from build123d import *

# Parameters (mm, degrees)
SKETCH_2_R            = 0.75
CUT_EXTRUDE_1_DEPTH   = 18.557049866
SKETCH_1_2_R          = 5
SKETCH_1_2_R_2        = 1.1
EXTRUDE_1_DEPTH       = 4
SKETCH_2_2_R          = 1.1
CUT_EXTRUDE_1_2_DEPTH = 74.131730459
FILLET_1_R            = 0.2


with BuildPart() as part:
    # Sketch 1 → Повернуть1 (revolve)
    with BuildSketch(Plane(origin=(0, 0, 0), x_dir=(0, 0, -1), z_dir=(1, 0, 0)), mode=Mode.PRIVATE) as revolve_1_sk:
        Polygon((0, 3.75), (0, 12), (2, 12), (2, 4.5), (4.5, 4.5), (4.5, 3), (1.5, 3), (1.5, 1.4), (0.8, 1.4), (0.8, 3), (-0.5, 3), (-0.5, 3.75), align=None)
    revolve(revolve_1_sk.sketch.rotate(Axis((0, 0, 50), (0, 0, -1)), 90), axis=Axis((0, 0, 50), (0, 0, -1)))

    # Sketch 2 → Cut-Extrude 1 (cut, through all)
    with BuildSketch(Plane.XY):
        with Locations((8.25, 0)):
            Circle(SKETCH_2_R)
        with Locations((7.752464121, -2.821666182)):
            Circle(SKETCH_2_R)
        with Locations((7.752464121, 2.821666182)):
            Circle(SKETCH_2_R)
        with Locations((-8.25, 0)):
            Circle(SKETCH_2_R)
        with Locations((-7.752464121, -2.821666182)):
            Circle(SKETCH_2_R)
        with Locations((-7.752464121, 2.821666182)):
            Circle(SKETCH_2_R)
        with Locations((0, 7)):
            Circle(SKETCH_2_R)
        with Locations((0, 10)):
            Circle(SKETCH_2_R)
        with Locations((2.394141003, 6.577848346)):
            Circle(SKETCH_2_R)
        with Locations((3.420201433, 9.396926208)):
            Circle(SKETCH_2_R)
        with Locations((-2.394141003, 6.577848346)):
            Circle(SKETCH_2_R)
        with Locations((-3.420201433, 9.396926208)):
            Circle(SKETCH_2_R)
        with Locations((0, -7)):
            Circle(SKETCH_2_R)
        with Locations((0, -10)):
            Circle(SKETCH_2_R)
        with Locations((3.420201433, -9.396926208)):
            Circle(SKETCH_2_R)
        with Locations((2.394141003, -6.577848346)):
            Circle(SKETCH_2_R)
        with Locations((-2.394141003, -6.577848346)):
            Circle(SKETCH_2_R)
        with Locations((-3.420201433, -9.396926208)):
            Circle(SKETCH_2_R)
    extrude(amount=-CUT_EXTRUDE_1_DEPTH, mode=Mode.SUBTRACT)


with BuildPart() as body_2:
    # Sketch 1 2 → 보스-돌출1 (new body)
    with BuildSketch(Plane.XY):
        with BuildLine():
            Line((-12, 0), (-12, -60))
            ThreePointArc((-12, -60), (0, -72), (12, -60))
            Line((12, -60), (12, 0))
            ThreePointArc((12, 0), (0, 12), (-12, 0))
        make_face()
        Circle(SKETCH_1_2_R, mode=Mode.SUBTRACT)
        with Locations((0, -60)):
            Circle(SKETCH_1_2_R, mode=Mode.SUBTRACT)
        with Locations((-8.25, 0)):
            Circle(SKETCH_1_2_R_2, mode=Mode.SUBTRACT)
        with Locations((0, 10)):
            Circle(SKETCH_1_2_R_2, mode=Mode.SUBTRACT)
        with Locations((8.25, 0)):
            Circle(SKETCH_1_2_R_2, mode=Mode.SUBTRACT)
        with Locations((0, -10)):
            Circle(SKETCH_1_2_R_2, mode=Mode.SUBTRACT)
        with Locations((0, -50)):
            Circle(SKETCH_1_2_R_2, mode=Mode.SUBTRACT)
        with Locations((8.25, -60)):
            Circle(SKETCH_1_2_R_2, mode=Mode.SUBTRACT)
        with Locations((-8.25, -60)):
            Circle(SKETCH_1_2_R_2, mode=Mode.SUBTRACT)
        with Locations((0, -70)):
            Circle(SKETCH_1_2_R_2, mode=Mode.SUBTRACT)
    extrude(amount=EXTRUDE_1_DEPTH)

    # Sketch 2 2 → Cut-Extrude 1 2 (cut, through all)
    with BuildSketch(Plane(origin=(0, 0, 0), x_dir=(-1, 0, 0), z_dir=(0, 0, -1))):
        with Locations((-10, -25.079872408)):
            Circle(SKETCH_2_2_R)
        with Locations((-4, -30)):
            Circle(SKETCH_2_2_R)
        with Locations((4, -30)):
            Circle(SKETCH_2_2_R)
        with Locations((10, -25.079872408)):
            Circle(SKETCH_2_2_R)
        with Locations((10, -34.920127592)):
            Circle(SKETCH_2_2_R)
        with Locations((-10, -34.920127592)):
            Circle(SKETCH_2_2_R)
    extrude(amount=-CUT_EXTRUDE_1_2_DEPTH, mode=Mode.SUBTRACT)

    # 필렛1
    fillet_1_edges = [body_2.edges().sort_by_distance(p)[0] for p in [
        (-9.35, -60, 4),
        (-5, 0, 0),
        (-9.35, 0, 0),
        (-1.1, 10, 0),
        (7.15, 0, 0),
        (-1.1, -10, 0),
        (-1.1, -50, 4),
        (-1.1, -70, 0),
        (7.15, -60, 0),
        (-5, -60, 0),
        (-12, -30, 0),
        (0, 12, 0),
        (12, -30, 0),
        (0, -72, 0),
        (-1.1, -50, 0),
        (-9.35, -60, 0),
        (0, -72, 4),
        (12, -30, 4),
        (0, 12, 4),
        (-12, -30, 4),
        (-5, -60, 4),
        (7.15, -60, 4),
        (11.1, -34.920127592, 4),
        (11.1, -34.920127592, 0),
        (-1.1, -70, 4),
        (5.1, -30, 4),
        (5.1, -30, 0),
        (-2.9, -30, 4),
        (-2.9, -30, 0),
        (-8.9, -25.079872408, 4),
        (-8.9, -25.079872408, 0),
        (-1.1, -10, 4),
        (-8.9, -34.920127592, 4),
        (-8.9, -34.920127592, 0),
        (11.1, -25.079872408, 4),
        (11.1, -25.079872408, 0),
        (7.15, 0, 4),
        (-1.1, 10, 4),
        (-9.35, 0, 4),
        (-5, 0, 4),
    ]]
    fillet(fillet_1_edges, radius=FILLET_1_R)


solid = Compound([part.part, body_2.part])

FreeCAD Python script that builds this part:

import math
import FreeCAD as App
import Part
import Sketcher
from FreeCAD import Vector
Q = App.Units.Quantity


def edges_at(feature, points):
    """Names of the edges that pass closest to the given points."""
    edges = feature.Shape.Edges
    near = lambda p: min(range(len(edges)), key=lambda i: edges[i].distToShape(Part.Vertex(*p))[0])
    return sorted({f"Edge{near(p) + 1}" for p in points})

doc = App.newDocument("Part")
body = doc.addObject("PartDesign::Body", "Body")

# Sketch on YZ plane
sketch1 = body.newObject("Sketcher::SketchObject", "Sketch")
sketch1.AttachmentSupport = (doc.getObject("YZ_Plane"), [""])
sketch1.MapMode = "FlatFace"
sketch1.addGeometry([
    Part.LineSegment(Vector(12, 0, 0), Vector(3.8, 0, 0)),  # 0
    Part.LineSegment(Vector(3.8, 0, 0), Vector(3.8, 0.5, 0)),  # 1
    Part.LineSegment(Vector(3.8, 0.5, 0), Vector(3, 0.5, 0)),  # 2
    Part.LineSegment(Vector(3, 0.5, 0), Vector(3, -0.8, 0)),  # 3
    Part.LineSegment(Vector(3, -0.8, 0), Vector(1.4, -0.8, 0)),  # 4
    Part.LineSegment(Vector(1.4, -0.8, 0), Vector(1.4, -1.5, 0)),  # 5
    Part.LineSegment(Vector(1.4, -1.5, 0), Vector(3, -1.5, 0)),  # 6
    Part.LineSegment(Vector(3, -1.5, 0), Vector(3, -4.5, 0)),  # 7
    Part.LineSegment(Vector(3, -4.5, 0), Vector(4.5, -4.5, 0)),  # 8
    Part.LineSegment(Vector(4.5, -4.5, 0), Vector(4.5, -2, 0)),  # 9
    Part.LineSegment(Vector(4.5, -2, 0), Vector(12, -2, 0)),  # 10
    Part.LineSegment(Vector(12, -2, 0), Vector(12, 0, 0)),  # 11
], False)
sketch1.addConstraint([
    Sketcher.Constraint("Coincident", 0, 2, 1, 1),
    Sketcher.Constraint("Coincident", 1, 2, 2, 1),
    Sketcher.Constraint("Coincident", 2, 2, 3, 1),
    Sketcher.Constraint("Coincident", 3, 2, 4, 1),
    Sketcher.Constraint("Coincident", 4, 2, 5, 1),
    Sketcher.Constraint("Coincident", 5, 2, 6, 1),
    Sketcher.Constraint("Coincident", 6, 2, 7, 1),
    Sketcher.Constraint("Coincident", 7, 2, 8, 1),
    Sketcher.Constraint("Coincident", 8, 2, 9, 1),
    Sketcher.Constraint("Coincident", 9, 2, 10, 1),
    Sketcher.Constraint("Coincident", 10, 2, 11, 1),
    Sketcher.Constraint("Coincident", 11, 2, 0, 1),
    Sketcher.Constraint("Horizontal", 0),
    Sketcher.Constraint("Vertical", 1),
    Sketcher.Constraint("Horizontal", 2),
    Sketcher.Constraint("Vertical", 3),
    Sketcher.Constraint("Horizontal", 4),
    Sketcher.Constraint("Vertical", 5),
    Sketcher.Constraint("Horizontal", 6),
    Sketcher.Constraint("Vertical", 7),
    Sketcher.Constraint("Horizontal", 8),
    Sketcher.Constraint("Vertical", 9),
    Sketcher.Constraint("Horizontal", 10),
    Sketcher.Constraint("Vertical", 11),
    Sketcher.Constraint("PointOnObject", 0, 2, -1),
    Sketcher.Constraint("Vertical", 3, 2, 6, 2),
    Sketcher.Constraint("DistanceY", 7, 2, 7, 1, Q("3 mm")),
    Sketcher.Constraint("DistanceY", 11, 1, 11, 2, Q("2 mm")),
    Sketcher.Constraint("DistanceX", 4, 2, 4, 1, Q("1.6 mm")),
    Sketcher.Constraint("DistanceX", 8, 1, 8, 2, Q("1.5 mm")),
    Sketcher.Constraint("DistanceX", 10, 1, 10, 2, Q("7.5 mm")),
    Sketcher.Constraint("DistanceY", 1, 1, 1, 2, Q("0.5 mm")),
    Sketcher.Constraint("DistanceY", 3, 2, 3, 1, Q("1.3 mm")),
    Sketcher.Constraint("DistanceY", 5, 2, 5, 1, Q("0.7 mm")),
    Sketcher.Constraint("DistanceX", -1, 1, 2, 2, Q("3 mm")),
    Sketcher.Constraint("DistanceX", 0, 2, 0, 1, Q("8.25 mm")),
])
revolution = body.newObject("PartDesign::Revolution", "Revolution")
revolution.Profile = sketch1
revolution.ReferenceAxis = (sketch1, ["V_Axis"])
revolution.Angle = 360

# Sketch on XY plane
sketch2 = body.newObject("Sketcher::SketchObject", "Sketch001")
sketch2.AttachmentSupport = (doc.getObject("XY_Plane"), [""])
sketch2.MapMode = "FlatFace"
sketch2.addGeometry([
    Part.Circle(Vector(8.2, 0, 0), Vector(0, 0, 1), 0.8),  # 0
    Part.Circle(Vector(7.8, -2.8, 0), Vector(0, 0, 1), 0.8),  # 1
    Part.Circle(Vector(7.8, 2.8, 0), Vector(0, 0, 1), 0.8),  # 2
    Part.Circle(Vector(-8.2, 0, 0), Vector(0, 0, 1), 0.8),  # 3
    Part.Circle(Vector(-7.8, -2.8, 0), Vector(0, 0, 1), 0.8),  # 4
    Part.Circle(Vector(-7.8, 2.8, 0), Vector(0, 0, 1), 0.8),  # 5
    Part.Circle(Vector(0, 7, 0), Vector(0, 0, 1), 0.8),  # 6
    Part.Circle(Vector(0, 10, 0), Vector(0, 0, 1), 0.8),  # 7
    Part.Circle(Vector(2.4, 6.6, 0), Vector(0, 0, 1), 0.8),  # 8
    Part.Circle(Vector(3.4, 9.4, 0), Vector(0, 0, 1), 0.8),  # 9
    Part.Circle(Vector(-2.4, 6.6, 0), Vector(0, 0, 1), 0.8),  # 10
    Part.Circle(Vector(-3.4, 9.4, 0), Vector(0, 0, 1), 0.8),  # 11
    Part.Circle(Vector(0, -7, 0), Vector(0, 0, 1), 0.8),  # 12
    Part.Circle(Vector(0, -10, 0), Vector(0, 0, 1), 0.8),  # 13
    Part.Circle(Vector(3.4, -9.4, 0), Vector(0, 0, 1), 0.8),  # 14
    Part.Circle(Vector(2.4, -6.6, 0), Vector(0, 0, 1), 0.8),  # 15
    Part.Circle(Vector(-2.4, -6.6, 0), Vector(0, 0, 1), 0.8),  # 16
    Part.Circle(Vector(-3.4, -9.4, 0), Vector(0, 0, 1), 0.8),  # 17
], False)
sketch2.addConstraint([
    Sketcher.Constraint("Equal", 0, 1),
    Sketcher.Constraint("Equal", 1, 2),
    Sketcher.Constraint("Equal", 2, 3),
    Sketcher.Constraint("Equal", 3, 4),
    Sketcher.Constraint("Equal", 4, 5),
    Sketcher.Constraint("Equal", 5, 6),
    Sketcher.Constraint("Equal", 6, 7),
    Sketcher.Constraint("Equal", 7, 8),
    Sketcher.Constraint("Equal", 8, 9),
    Sketcher.Constraint("Equal", 9, 10),
    Sketcher.Constraint("Equal", 10, 11),
    Sketcher.Constraint("Equal", 11, 12),
    Sketcher.Constraint("Equal", 12, 13),
    Sketcher.Constraint("Equal", 13, 14),
    Sketcher.Constraint("Equal", 14, 15),
    Sketcher.Constraint("Equal", 15, 16),
    Sketcher.Constraint("Equal", 16, 17),
    Sketcher.Constraint("Symmetric", 0, 3, 3, 3, -1, 1),
    Sketcher.Constraint("Symmetric", 2, 3, 4, 3, -1, 1),
    Sketcher.Constraint("Symmetric", 1, 3, 5, 3, -1, 1),
    Sketcher.Constraint("Symmetric", 6, 3, 12, 3, -1, 1),
    Sketcher.Constraint("Symmetric", 7, 3, 13, 3, -1, 1),
    Sketcher.Constraint("Symmetric", 11, 3, 14, 3, -1, 1),
    Sketcher.Constraint("Symmetric", 10, 3, 15, 3, -1, 1),
    Sketcher.Constraint("Symmetric", 8, 3, 16, 3, -1, 1),
    Sketcher.Constraint("Symmetric", 9, 3, 17, 3, -1, 1),
    Sketcher.Constraint("Symmetric", 1, 3, 4, 3, -2),
    Sketcher.Constraint("Symmetric", 8, 3, 10, 3, -2),
    Sketcher.Constraint("Symmetric", 9, 3, 11, 3, -2),
    Sketcher.Constraint("PointOnObject", 0, 3, -1),
    Sketcher.Constraint("PointOnObject", 6, 3, -2),
    Sketcher.Constraint("PointOnObject", 7, 3, -2),
    Sketcher.Constraint("Diameter", 0, Q("1.5 mm")),
    Sketcher.Constraint("DistanceY", -1, 1, 6, 3, Q("7 mm")),
    Sketcher.Constraint("DistanceY", -1, 1, 7, 3, Q("10 mm")),
    Sketcher.Constraint("DistanceX", 3, 3, 0, 3, Q("16.5 mm")),
    Sketcher.Constraint("DistanceX", -1, 1, 9, 3, Q("3.420201 mm")),
    Sketcher.Constraint("DistanceX", -1, 1, 8, 3, Q("2.394141 mm")),
    Sketcher.Constraint("DistanceY", -1, 1, 8, 3, Q("6.577848 mm")),
    Sketcher.Constraint("DistanceX", 4, 3, 1, 3, Q("15.504928 mm")),
    Sketcher.Constraint("DistanceY", 2, 3, 9, 3, Q("6.57526 mm")),
    Sketcher.Constraint("DistanceY", 1, 3, -1, 1, Q("2.821666 mm")),
])
pocket1 = body.newObject("PartDesign::Pocket", "Pocket")
pocket1.Profile = sketch2
pocket1.Type = "ThroughAll"
body2 = doc.addObject("PartDesign::Body", "Body001")

# Sketch on XY plane
sketch3 = body2.newObject("Sketcher::SketchObject", "Sketch002")
sketch3.AttachmentSupport = (doc.getObject("XY_Plane001"), [""])
sketch3.MapMode = "FlatFace"
sketch3.addGeometry([
    Part.LineSegment(Vector(-12, 0, 0), Vector(-12, -60, 0)),  # 0
    Part.ArcOfCircle(Part.Circle(Vector(0, -60, 0), Vector(0, 0, 1), 12), math.radians(180), math.radians(360)),  # 1
    Part.LineSegment(Vector(12, -60, 0), Vector(12, 0, 0)),  # 2
    Part.ArcOfCircle(Part.Circle(Vector(0, 0, 0), Vector(0, 0, 1), 12), math.radians(0), math.radians(180)),  # 3
    Part.Circle(Vector(-8.2, -60, 0), Vector(0, 0, 1), 1.1),  # 4
    Part.Circle(Vector(0, -70, 0), Vector(0, 0, 1), 1.1),  # 5
    Part.Circle(Vector(0, -60, 0), Vector(0, 0, 1), 5),  # 6
    Part.Circle(Vector(0, -50, 0), Vector(0, 0, 1), 1.1),  # 7
    Part.Circle(Vector(8.2, -60, 0), Vector(0, 0, 1), 1.1),  # 8
    Part.Circle(Vector(0, -10, 0), Vector(0, 0, 1), 1.1),  # 9
    Part.Circle(Vector(-8.2, 0, 0), Vector(0, 0, 1), 1.1),  # 10
    Part.Circle(Vector(0, 0, 0), Vector(0, 0, 1), 5),  # 11
    Part.Circle(Vector(0, 10, 0), Vector(0, 0, 1), 1.1),  # 12
    Part.Circle(Vector(8.2, 0, 0), Vector(0, 0, 1), 1.1),  # 13
], False)
sketch3.addConstraint([
    Sketcher.Constraint("Tangent", 0, 2, 1, 1),
    Sketcher.Constraint("Tangent", 1, 2, 2, 1),
    Sketcher.Constraint("Tangent", 2, 2, 3, 1),
    Sketcher.Constraint("Tangent", 3, 2, 0, 1),
    Sketcher.Constraint("Vertical", 0),
    Sketcher.Constraint("Vertical", 2),
    Sketcher.Constraint("Coincident", 3, 3, -1, 1),
    Sketcher.Constraint("Coincident", 11, 3, -1, 1),
    Sketcher.Constraint("Coincident", 6, 3, 1, 3),
    Sketcher.Constraint("Equal", 4, 5),
    Sketcher.Constraint("Equal", 5, 7),
    Sketcher.Constraint("Equal", 7, 8),
    Sketcher.Constraint("Equal", 8, 9),
    Sketcher.Constraint("Equal", 9, 10),
    Sketcher.Constraint("Equal", 6, 11),
    Sketcher.Constraint("Equal", 10, 12),
    Sketcher.Constraint("Equal", 12, 13),
    Sketcher.Constraint("Symmetric", 9, 3, 12, 3, -1, 1),
    Sketcher.Constraint("Symmetric", 10, 3, 13, 3, -1, 1),
    Sketcher.Constraint("Symmetric", 4, 3, 8, 3, -2),
    Sketcher.Constraint("PointOnObject", 5, 3, -2),
    Sketcher.Constraint("PointOnObject", 7, 3, -2),
    Sketcher.Constraint("PointOnObject", 9, 3, -2),
    Sketcher.Constraint("PointOnObject", 10, 3, -1),
    Sketcher.Constraint("Horizontal", 1, 3, 4, 3),
    Sketcher.Constraint("Vertical", 4, 3, 10, 3),
    Sketcher.Constraint("Diameter", 6, Q("10 mm")),
    Sketcher.Constraint("Radius", 1, Q("12 mm")),
    Sketcher.Constraint("Diameter", 4, Q("2.2 mm")),
    Sketcher.Constraint("DistanceY", 0, 2, 0, 1, Q("60 mm")),
    Sketcher.Constraint("DistanceY", 5, 3, -1, 1, Q("70 mm")),
    Sketcher.Constraint("DistanceY", 7, 3, -1, 1, Q("50 mm")),
    Sketcher.Constraint("DistanceY", 9, 3, -1, 1, Q("10 mm")),
    Sketcher.Constraint("DistanceX", 4, 3, 8, 3, Q("16.5 mm")),
])
pad1 = body2.newObject("PartDesign::Pad", "Pad")
pad1.Profile = sketch3
pad1.Length = 4

# Sketch on XY plane
sketch4 = body2.newObject("Sketcher::SketchObject", "Sketch003")
sketch4.AttachmentSupport = (doc.getObject("XY_Plane001"), [""])
sketch4.MapMode = "FlatFace"
sketch4.addGeometry([
    Part.Circle(Vector(10, -25.1, 0), Vector(0, 0, 1), 1.1),  # 0
    Part.Circle(Vector(4, -30, 0), Vector(0, 0, 1), 1.1),  # 1
    Part.Circle(Vector(-4, -30, 0), Vector(0, 0, 1), 1.1),  # 2
    Part.Circle(Vector(-10, -25.1, 0), Vector(0, 0, 1), 1.1),  # 3
    Part.Circle(Vector(-10, -34.9, 0), Vector(0, 0, 1), 1.1),  # 4
    Part.Circle(Vector(10, -34.9, 0), Vector(0, 0, 1), 1.1),  # 5
], False)
sketch4.addConstraint([
    Sketcher.Constraint("Equal", 0, 1),
    Sketcher.Constraint("Equal", 1, 2),
    Sketcher.Constraint("Equal", 2, 3),
    Sketcher.Constraint("Equal", 3, 4),
    Sketcher.Constraint("Equal", 4, 5),
    Sketcher.Constraint("Symmetric", 1, 3, 2, 3, -2),
    Sketcher.Constraint("Symmetric", 0, 3, 3, 3, -2),
    Sketcher.Constraint("Symmetric", 4, 3, 5, 3, -2),
    Sketcher.Constraint("Vertical", 3, 3, 4, 3),
    Sketcher.Constraint("Diameter", 0, Q("2.2 mm")),
    Sketcher.Constraint("DistanceX", -1, 1, 0, 3, Q("10 mm")),
    Sketcher.Constraint("DistanceX", -1, 1, 1, 3, Q("4 mm")),
    Sketcher.Constraint("DistanceY", 1, 3, -1, 1, Q("30 mm")),
    Sketcher.Constraint("DistanceY", 0, 3, -1, 1, Q("25.079872 mm")),
    Sketcher.Constraint("DistanceY", 4, 3, -1, 1, Q("34.920128 mm")),
])
pocket2 = body2.newObject("PartDesign::Pocket", "Pocket001")
pocket2.Profile = sketch4
pocket2.Type = "ThroughAll"
pocket2.Reversed = True
doc.recompute()

fillet = body2.newObject("PartDesign::Fillet", "Fillet")
fillet.Base = (pocket2, edges_at(pocket2, [
    (-9.35, -60, 4),
    (-5, 0, 0),
    (-9.35, 0, 0),
    (-1.1, 10, 0),
    (7.15, 0, 0),
    (-1.1, -10, 0),
    (-1.1, -50, 4),
    (-1.1, -70, 0),
    (7.15, -60, 0),
    (-5, -60, 0),
    (-12, -30, 0),
    (0, 12, 0),
    (12, -30, 0),
    (0, -72, 0),
    (-1.1, -50, 0),
    (-9.35, -60, 0),
    (0, -72, 4),
    (12, -30, 4),
    (0, 12, 4),
    (-12, -30, 4),
    (-5, -60, 4),
    (7.15, -60, 4),
    (11.1, -34.92, 4),
    (11.1, -34.92, 0),
    (-1.1, -70, 4),
    (5.1, -30, 4),
    (5.1, -30, 0),
    (-2.9, -30, 4),
    (-2.9, -30, 0),
    (-8.9, -25.08, 4),
    (-8.9, -25.08, 0),
    (-1.1, -10, 4),
    (-8.9, -34.92, 4),
    (-8.9, -34.92, 0),
    (11.1, -25.08, 4),
    (11.1, -25.08, 0),
    (7.15, 0, 4),
    (-1.1, 10, 4),
    (-9.35, 0, 4),
    (-5, 0, 4),
]))
fillet.Radius = 0.2

doc.recompute()
